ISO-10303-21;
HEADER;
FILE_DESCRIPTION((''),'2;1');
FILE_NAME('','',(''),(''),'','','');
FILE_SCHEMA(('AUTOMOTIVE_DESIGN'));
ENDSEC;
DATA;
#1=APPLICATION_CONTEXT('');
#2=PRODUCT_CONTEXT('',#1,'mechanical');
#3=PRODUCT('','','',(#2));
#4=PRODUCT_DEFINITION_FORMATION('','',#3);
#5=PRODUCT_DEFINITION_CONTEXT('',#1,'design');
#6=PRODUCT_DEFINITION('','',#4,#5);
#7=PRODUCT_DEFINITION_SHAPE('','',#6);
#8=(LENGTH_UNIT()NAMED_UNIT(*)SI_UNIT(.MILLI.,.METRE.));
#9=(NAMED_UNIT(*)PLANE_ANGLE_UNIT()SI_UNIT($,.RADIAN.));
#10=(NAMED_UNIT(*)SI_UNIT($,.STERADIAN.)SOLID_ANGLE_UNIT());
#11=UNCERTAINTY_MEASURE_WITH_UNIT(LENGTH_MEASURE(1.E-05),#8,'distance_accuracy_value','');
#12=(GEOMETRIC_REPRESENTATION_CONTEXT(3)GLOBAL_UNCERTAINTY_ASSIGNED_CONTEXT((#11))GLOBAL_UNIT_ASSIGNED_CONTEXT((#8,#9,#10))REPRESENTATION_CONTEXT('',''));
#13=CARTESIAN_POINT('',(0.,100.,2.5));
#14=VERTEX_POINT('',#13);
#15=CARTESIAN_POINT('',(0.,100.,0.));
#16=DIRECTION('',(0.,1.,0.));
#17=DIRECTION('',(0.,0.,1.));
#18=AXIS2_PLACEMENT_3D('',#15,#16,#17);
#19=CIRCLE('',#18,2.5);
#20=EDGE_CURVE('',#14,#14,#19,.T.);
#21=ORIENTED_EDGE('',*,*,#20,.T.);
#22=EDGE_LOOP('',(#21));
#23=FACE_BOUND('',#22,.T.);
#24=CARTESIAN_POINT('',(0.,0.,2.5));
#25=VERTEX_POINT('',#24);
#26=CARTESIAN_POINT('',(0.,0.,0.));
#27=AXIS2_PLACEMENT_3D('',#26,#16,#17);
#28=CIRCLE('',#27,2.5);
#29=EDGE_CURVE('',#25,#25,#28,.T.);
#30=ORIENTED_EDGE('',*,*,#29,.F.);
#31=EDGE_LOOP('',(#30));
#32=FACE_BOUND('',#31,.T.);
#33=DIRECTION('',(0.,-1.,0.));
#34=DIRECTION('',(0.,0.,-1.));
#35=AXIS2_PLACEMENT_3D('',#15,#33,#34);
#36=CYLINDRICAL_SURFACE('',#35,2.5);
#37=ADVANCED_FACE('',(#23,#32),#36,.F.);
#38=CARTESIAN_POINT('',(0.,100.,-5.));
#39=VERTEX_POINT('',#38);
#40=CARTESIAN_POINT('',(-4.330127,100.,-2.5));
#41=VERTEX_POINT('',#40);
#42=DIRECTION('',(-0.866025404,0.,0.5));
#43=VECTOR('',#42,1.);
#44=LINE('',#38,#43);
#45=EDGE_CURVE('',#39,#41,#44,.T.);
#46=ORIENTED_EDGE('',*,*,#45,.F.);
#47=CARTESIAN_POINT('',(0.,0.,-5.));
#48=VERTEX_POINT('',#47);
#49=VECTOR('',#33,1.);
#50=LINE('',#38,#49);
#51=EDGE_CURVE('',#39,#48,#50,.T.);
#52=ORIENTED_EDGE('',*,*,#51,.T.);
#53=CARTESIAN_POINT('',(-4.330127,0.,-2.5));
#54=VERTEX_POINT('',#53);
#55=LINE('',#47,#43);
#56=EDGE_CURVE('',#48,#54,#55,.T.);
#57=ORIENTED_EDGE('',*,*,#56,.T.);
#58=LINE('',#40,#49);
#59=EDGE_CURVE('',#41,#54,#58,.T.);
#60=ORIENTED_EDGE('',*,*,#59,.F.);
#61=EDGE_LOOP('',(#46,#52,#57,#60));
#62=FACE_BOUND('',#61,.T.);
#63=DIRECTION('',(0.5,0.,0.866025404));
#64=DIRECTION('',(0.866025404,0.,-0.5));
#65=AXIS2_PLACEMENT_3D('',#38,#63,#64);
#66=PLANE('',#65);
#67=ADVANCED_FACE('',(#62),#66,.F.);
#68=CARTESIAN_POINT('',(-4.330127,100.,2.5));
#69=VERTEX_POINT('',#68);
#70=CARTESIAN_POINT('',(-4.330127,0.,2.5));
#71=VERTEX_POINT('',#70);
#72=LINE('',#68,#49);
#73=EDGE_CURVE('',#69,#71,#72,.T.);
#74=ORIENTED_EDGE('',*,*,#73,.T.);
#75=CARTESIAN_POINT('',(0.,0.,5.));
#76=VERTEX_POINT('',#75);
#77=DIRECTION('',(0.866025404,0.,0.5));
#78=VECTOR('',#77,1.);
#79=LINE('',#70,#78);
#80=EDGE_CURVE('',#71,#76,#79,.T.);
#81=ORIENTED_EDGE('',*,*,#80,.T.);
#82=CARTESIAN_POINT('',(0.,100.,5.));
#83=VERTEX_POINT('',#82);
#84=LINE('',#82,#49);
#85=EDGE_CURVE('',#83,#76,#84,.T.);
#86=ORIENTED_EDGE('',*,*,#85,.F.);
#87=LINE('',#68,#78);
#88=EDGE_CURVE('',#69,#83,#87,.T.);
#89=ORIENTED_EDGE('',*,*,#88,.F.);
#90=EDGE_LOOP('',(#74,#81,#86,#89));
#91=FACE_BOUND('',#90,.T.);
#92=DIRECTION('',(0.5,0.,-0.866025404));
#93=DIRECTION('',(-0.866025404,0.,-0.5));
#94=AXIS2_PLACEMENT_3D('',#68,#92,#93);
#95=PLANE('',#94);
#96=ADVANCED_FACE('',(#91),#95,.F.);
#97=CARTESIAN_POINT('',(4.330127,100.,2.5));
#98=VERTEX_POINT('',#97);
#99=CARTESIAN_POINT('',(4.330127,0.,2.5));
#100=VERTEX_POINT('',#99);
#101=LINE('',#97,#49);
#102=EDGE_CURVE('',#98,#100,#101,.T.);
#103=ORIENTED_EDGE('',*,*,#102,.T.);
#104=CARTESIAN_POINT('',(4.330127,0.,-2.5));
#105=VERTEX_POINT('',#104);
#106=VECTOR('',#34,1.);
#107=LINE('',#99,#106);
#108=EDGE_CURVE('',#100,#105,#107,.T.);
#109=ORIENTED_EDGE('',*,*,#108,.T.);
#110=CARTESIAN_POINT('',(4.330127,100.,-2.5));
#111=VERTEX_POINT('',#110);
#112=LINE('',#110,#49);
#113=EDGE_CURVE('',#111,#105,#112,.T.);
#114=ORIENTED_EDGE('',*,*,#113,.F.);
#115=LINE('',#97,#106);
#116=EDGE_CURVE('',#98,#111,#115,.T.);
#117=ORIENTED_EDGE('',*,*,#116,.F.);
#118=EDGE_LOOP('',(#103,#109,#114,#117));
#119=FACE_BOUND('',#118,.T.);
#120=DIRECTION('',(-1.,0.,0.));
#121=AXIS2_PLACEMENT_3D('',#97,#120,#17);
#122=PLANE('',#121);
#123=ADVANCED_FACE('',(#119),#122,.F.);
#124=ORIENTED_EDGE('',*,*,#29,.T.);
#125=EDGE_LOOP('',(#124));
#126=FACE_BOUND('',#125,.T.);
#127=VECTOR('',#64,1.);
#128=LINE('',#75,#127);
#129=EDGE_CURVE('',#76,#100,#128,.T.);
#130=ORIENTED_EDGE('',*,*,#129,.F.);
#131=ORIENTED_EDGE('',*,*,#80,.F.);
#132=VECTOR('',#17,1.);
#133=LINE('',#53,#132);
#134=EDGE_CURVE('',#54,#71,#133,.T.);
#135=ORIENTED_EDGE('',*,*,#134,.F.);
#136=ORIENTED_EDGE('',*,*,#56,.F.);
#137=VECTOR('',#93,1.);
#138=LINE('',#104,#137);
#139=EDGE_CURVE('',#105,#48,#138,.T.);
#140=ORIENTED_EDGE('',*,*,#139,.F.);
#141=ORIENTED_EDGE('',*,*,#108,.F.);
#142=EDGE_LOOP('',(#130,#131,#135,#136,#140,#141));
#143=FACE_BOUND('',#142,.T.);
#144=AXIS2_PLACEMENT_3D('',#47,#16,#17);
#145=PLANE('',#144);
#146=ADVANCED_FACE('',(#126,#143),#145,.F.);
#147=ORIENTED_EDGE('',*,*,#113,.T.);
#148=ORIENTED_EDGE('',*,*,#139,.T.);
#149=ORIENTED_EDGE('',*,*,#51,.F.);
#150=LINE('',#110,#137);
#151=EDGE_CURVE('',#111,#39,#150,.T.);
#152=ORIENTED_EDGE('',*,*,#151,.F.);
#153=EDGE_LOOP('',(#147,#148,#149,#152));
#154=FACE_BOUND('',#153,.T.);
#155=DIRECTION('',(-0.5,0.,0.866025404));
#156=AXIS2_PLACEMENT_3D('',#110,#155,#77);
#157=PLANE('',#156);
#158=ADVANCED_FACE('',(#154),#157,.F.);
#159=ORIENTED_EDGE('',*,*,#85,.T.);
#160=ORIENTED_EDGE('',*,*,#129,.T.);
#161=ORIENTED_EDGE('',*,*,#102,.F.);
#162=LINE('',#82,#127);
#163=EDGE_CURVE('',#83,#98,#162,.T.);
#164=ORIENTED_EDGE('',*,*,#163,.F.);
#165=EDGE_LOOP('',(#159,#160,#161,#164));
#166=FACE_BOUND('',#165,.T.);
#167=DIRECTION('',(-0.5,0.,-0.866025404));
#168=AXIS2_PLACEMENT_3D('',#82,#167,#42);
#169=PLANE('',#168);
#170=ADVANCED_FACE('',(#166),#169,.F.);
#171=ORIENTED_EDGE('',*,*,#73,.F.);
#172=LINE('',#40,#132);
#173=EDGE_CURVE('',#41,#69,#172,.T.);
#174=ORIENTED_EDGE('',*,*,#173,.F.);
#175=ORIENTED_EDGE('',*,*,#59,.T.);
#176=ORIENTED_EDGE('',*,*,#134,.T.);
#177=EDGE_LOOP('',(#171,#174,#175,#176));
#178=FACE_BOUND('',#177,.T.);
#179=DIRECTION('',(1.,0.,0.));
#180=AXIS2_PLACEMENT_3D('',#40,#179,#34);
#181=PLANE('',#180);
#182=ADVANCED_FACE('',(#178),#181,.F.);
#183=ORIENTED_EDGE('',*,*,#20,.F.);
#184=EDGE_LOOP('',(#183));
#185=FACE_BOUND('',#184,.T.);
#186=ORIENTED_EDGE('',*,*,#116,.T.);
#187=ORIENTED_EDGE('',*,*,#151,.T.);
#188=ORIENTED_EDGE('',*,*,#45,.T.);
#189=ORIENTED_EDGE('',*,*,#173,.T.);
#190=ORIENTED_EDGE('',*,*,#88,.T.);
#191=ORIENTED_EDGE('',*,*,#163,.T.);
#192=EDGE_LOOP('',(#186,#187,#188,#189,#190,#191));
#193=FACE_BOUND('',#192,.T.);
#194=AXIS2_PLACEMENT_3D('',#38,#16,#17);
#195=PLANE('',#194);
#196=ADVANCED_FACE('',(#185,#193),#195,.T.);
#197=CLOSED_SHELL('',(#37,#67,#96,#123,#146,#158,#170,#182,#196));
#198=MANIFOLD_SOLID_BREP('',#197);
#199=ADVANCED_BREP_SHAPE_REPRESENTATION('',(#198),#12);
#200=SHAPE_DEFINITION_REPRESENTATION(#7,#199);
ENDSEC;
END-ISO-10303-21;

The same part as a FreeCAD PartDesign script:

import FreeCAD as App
import Part
import Sketcher
from FreeCAD import Vector
Q = App.Units.Quantity

doc = App.newDocument("Part")
body = doc.addObject("PartDesign::Body", "Body")

# Sketch on XZ plane
sketch1 = doc.addObject("Sketcher::SketchObject", "Sketch")
body.addObject(sketch1)
sketch1.AttachmentSupport = (doc.XZ_Plane, [""])
sketch1.MapMode = "FlatFace"
sketch1.addGeometry([
    Part.LineSegment(Vector(0, -5, 0), Vector(-4.3, -2.5, 0)),  # 0
    Part.LineSegment(Vector(-4.3, -2.5, 0), Vector(-4.3, 2.5, 0)),  # 1
    Part.LineSegment(Vector(-4.3, 2.5, 0), Vector(0, 5, 0)),  # 2
    Part.LineSegment(Vector(0, 5, 0), Vector(4.3, 2.5, 0)),  # 3
    Part.LineSegment(Vector(4.3, 2.5, 0), Vector(4.3, -2.5, 0)),  # 4
    Part.LineSegment(Vector(4.3, -2.5, 0), Vector(0, -5, 0)),  # 5
    Part.Circle(Vector(0, 0, 0), Vector(0, 0, 1), 2.5),  # 6
], False)
sketch1.addConstraint([
    Sketcher.Constraint("Coincident", 0, 2, 1, 1),
    Sketcher.Constraint("Coincident", 1, 2, 2, 1),
    Sketcher.Constraint("Coincident", 2, 2, 3, 1),
    Sketcher.Constraint("Coincident", 3, 2, 4, 1),
    Sketcher.Constraint("Coincident", 4, 2, 5, 1),
    Sketcher.Constraint("Coincident", 5, 2, 0, 1),
    Sketcher.Constraint("Vertical", 1),
    Sketcher.Constraint("Vertical", 4),
    Sketcher.Constraint("Coincident", 6, 3, -1, 1),
    Sketcher.Constraint("Symmetric", 0, 2, 3, 2, -1, 1),
    Sketcher.Constraint("Symmetric", 2, 2, 5, 2, -1, 1),
    Sketcher.Constraint("PointOnObject", 2, 2, -2),
    Sketcher.Constraint("Parallel", 2, 5),
    Sketcher.Constraint("Horizontal", 1, 2, 3, 2),
    Sketcher.Constraint("Diameter", 6, 5.0),
    Sketcher.Constraint("DistanceY", 1, 1, 1, 2, 5.0),
    Sketcher.Constraint("Angle", 0, Q("150 deg")),
    Sketcher.Constraint("Distance", 0, 5.0),
])
pad1 = doc.addObject("PartDesign::Pad", "Pad")
body.addObject(pad1)
pad1.Profile = sketch1
pad1.Length = 100
pad1.Reversed = True

doc.recompute()
